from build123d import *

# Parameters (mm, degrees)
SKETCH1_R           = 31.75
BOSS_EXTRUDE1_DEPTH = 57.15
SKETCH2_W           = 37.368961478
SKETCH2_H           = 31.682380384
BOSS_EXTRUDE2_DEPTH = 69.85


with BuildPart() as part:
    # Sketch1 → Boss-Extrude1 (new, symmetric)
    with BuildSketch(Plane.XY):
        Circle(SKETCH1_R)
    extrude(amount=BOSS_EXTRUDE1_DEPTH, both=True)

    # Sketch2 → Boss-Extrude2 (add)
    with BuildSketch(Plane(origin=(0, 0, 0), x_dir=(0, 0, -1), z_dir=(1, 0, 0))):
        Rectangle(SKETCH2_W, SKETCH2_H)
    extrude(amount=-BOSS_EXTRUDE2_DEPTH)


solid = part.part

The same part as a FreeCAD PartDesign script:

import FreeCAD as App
import Part
import Sketcher
Q = App.Units.Quantity


def add_polygon(sketch, points):
    """Adds a closed chain of lines whose ends are joined by coincident constraints."""
    first, n = sketch.GeometryCount, len(points)
    for a, b in zip(points, points[1:] + points[:1]):
        sketch.addGeometry(Part.LineSegment(App.Vector(*a, 0), App.Vector(*b, 0)), False)
    for i in range(n):
        sketch.addConstraint(Sketcher.Constraint("Coincident", first + i, 2, first + (i + 1) % n, 1))

doc = App.newDocument("Part")
body = doc.addObject("PartDesign::Body", "Body")

sketch1 = doc.addObject("Sketcher::SketchObject", "Sketch")
body.addObject(sketch1)
sketch1.AttachmentSupport = (doc.XY_Plane, [""])
sketch1.MapMode = "FlatFace"
sketch1.addGeometry(Part.Circle(App.Vector(0, 0, 0), App.Vector(0, 0, 1), 32), False)
sketch1.addConstraint([
    Sketcher.Constraint("Coincident", 0, 3, -1, 1),
    Sketcher.Constraint("Diameter", 0, Q("2.5 in")),
])
pad1 = doc.addObject("PartDesign::Pad", "Pad")
body.addObject(pad1)
pad1.Profile = sketch1
pad1.Length = Q("4.5 in")
pad1.Midplane = True

sketch2 = doc.addObject("Sketcher::SketchObject", "Sketch001")
body.addObject(sketch2)
sketch2.AttachmentSupport = (doc.YZ_Plane, [""])
sketch2.MapMode = "FlatFace"
add_polygon(sketch2, [(16, 19), (-16, 19), (-16, -19), (16, -19)])
sketch2.addConstraint([
    Sketcher.Constraint("Horizontal", 0),
    Sketcher.Constraint("Vertical", 1),
    Sketcher.Constraint("Horizontal", 2),
    Sketcher.Constraint("Vertical", 3),
    Sketcher.Constraint("Symmetric", 0, 2, 2, 2, -1, 1),
    Sketcher.Constraint("DistanceX", 0, 2, 0, 1, 31.68238),
    Sketcher.Constraint("DistanceY", 1, 2, 1, 1, 37.368961),
])
pad2 = doc.addObject("PartDesign::Pad", "Pad001")
body.addObject(pad2)
pad2.Profile = sketch2
pad2.Length = Q("2.75 in")
pad2.Reversed = True

doc.recompute()
